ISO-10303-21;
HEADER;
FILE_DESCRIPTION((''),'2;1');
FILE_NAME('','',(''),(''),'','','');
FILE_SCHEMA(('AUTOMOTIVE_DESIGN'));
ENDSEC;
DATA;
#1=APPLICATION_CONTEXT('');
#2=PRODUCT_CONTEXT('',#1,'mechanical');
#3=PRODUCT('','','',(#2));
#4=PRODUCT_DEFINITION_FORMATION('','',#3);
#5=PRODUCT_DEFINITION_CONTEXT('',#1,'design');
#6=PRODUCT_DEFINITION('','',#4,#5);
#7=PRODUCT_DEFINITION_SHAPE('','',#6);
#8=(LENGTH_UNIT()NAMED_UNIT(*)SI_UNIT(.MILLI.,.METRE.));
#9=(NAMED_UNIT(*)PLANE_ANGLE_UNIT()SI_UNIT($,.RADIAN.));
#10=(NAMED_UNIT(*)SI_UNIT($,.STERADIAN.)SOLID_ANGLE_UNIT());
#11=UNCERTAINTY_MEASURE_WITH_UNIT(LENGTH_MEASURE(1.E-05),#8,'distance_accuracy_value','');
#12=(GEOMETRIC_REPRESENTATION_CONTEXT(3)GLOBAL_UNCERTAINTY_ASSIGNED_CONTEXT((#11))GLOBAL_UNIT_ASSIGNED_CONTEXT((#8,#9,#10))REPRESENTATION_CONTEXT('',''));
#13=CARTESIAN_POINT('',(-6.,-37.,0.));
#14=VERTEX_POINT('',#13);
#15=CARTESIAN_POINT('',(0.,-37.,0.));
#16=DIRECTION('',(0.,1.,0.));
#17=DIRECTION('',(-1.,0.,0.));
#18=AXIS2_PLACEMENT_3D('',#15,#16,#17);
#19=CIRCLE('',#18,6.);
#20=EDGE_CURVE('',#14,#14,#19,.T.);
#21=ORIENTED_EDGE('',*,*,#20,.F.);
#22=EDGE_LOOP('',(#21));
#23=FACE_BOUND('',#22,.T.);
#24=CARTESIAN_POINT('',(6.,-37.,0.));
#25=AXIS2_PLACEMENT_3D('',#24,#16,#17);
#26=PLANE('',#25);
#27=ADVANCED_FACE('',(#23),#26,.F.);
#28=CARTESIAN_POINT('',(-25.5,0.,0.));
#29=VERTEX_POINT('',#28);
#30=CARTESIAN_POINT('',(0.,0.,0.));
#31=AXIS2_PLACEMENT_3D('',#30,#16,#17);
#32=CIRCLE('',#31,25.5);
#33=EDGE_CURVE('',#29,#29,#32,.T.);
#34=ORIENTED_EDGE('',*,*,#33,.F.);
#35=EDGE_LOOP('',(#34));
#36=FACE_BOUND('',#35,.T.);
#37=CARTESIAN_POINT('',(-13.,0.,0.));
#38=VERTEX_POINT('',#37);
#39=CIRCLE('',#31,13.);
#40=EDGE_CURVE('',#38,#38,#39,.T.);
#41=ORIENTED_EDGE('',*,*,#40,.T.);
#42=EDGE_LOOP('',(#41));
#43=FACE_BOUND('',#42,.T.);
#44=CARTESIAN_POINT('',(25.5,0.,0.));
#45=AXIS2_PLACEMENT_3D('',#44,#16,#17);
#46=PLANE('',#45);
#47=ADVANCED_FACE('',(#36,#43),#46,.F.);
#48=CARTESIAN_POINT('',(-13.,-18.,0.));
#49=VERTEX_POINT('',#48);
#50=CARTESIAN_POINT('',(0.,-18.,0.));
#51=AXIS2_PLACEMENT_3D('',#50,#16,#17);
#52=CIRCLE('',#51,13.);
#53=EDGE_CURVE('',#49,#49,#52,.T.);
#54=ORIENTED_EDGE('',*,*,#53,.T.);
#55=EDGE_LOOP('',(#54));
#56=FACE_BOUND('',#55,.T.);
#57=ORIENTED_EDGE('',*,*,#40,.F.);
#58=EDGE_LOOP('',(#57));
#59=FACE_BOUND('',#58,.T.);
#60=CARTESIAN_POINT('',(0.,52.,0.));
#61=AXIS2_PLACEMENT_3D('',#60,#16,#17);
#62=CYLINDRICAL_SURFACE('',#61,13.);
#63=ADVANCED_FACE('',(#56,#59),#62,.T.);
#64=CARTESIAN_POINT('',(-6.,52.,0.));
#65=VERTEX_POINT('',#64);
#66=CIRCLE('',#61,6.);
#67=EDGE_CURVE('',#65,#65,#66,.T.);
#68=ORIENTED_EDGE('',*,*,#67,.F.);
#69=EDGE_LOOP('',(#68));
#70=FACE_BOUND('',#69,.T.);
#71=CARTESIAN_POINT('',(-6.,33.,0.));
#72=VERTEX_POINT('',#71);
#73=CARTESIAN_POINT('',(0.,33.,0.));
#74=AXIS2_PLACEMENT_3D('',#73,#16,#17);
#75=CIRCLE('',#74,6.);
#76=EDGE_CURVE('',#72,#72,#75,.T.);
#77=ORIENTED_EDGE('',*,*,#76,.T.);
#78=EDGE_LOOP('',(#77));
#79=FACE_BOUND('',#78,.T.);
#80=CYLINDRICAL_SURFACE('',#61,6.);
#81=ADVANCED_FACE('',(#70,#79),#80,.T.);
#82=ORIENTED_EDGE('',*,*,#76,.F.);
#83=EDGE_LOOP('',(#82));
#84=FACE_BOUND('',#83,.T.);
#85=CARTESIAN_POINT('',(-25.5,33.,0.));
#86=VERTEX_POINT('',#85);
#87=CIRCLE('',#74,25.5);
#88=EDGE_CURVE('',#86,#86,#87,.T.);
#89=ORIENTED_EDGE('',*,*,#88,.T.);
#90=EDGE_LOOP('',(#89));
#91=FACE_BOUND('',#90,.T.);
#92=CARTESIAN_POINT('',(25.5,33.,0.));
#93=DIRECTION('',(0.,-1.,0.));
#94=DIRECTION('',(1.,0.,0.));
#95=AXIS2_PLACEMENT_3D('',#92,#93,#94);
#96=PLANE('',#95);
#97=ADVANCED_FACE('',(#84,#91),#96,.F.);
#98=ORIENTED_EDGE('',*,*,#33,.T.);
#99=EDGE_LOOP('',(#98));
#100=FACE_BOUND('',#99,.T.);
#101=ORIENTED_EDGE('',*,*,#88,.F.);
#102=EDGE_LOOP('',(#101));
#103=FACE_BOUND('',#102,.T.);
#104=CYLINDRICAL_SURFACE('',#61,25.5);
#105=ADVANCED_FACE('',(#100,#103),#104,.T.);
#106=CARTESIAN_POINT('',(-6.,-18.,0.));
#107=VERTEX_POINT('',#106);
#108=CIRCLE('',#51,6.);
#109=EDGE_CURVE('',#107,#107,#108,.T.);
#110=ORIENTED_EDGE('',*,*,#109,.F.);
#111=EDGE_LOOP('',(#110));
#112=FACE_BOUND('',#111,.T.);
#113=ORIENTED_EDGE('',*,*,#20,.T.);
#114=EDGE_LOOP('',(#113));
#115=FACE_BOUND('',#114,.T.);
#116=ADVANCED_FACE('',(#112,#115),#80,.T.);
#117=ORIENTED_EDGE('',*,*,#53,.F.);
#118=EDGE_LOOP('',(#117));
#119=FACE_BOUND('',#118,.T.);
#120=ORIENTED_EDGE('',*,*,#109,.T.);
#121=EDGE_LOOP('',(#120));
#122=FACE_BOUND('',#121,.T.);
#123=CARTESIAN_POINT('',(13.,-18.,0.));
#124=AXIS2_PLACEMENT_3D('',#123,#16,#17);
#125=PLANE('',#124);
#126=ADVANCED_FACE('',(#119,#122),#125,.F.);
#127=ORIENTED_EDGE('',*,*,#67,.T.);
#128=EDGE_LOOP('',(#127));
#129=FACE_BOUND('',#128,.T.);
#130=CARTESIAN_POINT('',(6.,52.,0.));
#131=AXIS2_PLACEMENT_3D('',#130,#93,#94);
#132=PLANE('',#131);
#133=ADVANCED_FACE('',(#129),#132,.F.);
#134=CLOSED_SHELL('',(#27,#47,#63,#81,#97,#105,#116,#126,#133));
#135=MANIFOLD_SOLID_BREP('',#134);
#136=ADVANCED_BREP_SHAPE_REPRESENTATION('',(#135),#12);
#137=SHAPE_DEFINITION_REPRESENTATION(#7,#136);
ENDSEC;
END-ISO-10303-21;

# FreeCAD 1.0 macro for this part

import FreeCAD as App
import Part
import Sketcher
from FreeCAD import Vector
Q = App.Units.Quantity


def add_polygon(sketch, points):
    """Adds a closed chain of lines whose ends are joined by coincident constraints."""
    first, n = sketch.GeometryCount, len(points)
    for a, b in zip(points, points[1:] + points[:1]):
        sketch.addGeometry(Part.LineSegment(App.Vector(*a, 0), App.Vector(*b, 0)), False)
    for i in range(n):
        sketch.addConstraint(Sketcher.Constraint("Coincident", first + i, 2, first + (i + 1) % n, 1))

doc = App.newDocument("Part")
body = doc.addObject("PartDesign::Body", "Body")

# Sketch on XY plane
sketch1 = doc.addObject("Sketcher::SketchObject", "Sketch")
body.addObject(sketch1)
sketch1.AttachmentSupport = (doc.XY_Plane, [""])
sketch1.MapMode = "FlatFace"
add_polygon(sketch1, [(26, 0), (26, 33), (6, 33), (6, 52), (0, 52), (0, -37), (6, -37), (6, -18), (13, -18), (13, 0)])  # lines 0-9
sketch1.addConstraint([
    Sketcher.Constraint("Vertical", 0),
    Sketcher.Constraint("Horizontal", 1),
    Sketcher.Constraint("Vertical", 2),
    Sketcher.Constraint("Horizontal", 3),
    Sketcher.Constraint("Vertical", 4),
    Sketcher.Constraint("Horizontal", 5),
    Sketcher.Constraint("Vertical", 6),
    Sketcher.Constraint("Horizontal", 7),
    Sketcher.Constraint("Vertical", 8),
    Sketcher.Constraint("Horizontal", 9),
    Sketcher.Constraint("PointOnObject", 3, 2, -2),
    Sketcher.Constraint("PointOnObject", 8, 2, -1),
    Sketcher.Constraint("Vertical", 2, 2, 5, 2),
    Sketcher.Constraint("Equal", 2, 6),
    Sketcher.Constraint("DistanceX", 3, 2, 3, 1, Q("6 mm")),
    Sketcher.Constraint("DistanceX", 7, 1, 7, 2, Q("7 mm")),
    Sketcher.Constraint("DistanceY", 0, 1, 0, 2, Q("33 mm")),
    Sketcher.Constraint("DistanceY", 2, 1, 2, 2, Q("19 mm")),
    Sketcher.Constraint("DistanceY", 4, 2, 4, 1, Q("89 mm")),
    Sketcher.Constraint("DistanceX", 1, 2, 1, 1, Q("19.5 mm")),
])
revolution = doc.addObject("PartDesign::Revolution", "Revolution")
body.addObject(revolution)
revolution.Profile = sketch1
revolution.ReferenceAxis = (sketch1, ["V_Axis"])
revolution.Angle = 360

doc.recompute()
